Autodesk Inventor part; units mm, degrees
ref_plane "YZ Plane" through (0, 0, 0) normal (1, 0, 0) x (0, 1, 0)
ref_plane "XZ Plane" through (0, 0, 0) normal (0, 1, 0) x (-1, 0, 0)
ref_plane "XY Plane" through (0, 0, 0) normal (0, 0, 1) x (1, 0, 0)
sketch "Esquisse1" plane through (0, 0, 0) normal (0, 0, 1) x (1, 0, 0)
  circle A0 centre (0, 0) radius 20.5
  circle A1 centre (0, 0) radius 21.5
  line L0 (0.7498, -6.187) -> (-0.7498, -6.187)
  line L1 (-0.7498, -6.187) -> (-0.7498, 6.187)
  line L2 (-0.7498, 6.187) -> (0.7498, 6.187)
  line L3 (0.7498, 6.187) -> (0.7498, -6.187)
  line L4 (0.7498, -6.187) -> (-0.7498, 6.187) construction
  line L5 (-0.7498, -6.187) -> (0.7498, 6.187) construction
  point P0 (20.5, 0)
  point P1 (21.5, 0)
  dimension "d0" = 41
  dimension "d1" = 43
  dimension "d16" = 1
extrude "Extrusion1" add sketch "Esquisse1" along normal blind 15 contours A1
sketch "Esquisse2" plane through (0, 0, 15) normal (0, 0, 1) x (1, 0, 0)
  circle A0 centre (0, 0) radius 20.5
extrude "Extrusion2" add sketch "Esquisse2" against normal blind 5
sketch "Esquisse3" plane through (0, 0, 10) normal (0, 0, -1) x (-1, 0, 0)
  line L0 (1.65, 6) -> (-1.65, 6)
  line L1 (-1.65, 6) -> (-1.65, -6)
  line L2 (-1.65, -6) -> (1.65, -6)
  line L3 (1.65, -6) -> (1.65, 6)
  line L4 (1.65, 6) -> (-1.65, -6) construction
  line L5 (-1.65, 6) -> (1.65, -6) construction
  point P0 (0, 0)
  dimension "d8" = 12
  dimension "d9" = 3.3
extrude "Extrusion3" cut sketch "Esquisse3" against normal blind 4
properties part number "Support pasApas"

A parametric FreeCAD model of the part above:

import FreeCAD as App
import Part
import Sketcher
from FreeCAD import Vector
Q = App.Units.Quantity

doc = App.newDocument("Part")
body = doc.addObject("PartDesign::Body", "Body")

sketch1 = body.newObject("Sketcher::SketchObject", "Sketch")
sketch1.AttachmentSupport = (doc.getObject("XY_Plane"), [""])
sketch1.MapMode = "FlatFace"
sketch1.addGeometry([
    Part.Circle(Vector(0, 0, 0), Vector(0, 0, 1), 22),
    Part.Circle(Vector(0, 0, 0), Vector(0, 0, 1), 20),
], False)
sketch1.addConstraint([
    Sketcher.Constraint("Coincident", 0, 3, -1, 1),
    Sketcher.Constraint("Coincident", 1, 3, -1, 1),
    Sketcher.Constraint("Diameter", 0, Q("43 mm")),
    Sketcher.Constraint("Diameter", 1, Q("41 mm")),
])
pad1 = body.newObject("PartDesign::Pad", "Pad")
pad1.Profile = sketch1
pad1.Length = 15

sketch2 = body.newObject("Sketcher::SketchObject", "Sketch001")
sketch2.AttachmentSupport = (doc.getObject("XY_Plane"), [""])
sketch2.MapMode = "FlatFace"
sketch2.AttachmentOffset = App.Placement(Vector(0, 0, 15), App.Rotation())
sketch2.addGeometry(Part.Circle(Vector(0, 0, 0), Vector(0, 0, 1), 20), False)
sketch2.addConstraint([
    Sketcher.Constraint("Coincident", 0, 3, -1, 1),
    Sketcher.Constraint("Diameter", 0, Q("41 mm")),
])
pad2 = body.newObject("PartDesign::Pad", "Pad001")
pad2.Profile = sketch2
pad2.Length = 5
pad2.Reversed = True

sketch3 = body.newObject("Sketcher::SketchObject", "Sketch002")
sketch3.AttachmentSupport = (doc.getObject("XY_Plane"), [""])
sketch3.MapMode = "FlatFace"
sketch3.AttachmentOffset = App.Placement(Vector(0, 0, 10), App.Rotation())
sketch3.addGeometry([
    Part.LineSegment(Vector(-1.6, -6, 0), Vector(-1.6, 6, 0)),
    Part.LineSegment(Vector(-1.6, 6, 0), Vector(1.6, 6, 0)),
    Part.LineSegment(Vector(1.6, 6, 0), Vector(1.6, -6, 0)),
    Part.LineSegment(Vector(1.6, -6, 0), Vector(-1.6, -6, 0)),
], False)
sketch3.addConstraint([
    Sketcher.Constraint("Coincident", 0, 2, 1, 1),
    Sketcher.Constraint("Coincident", 1, 2, 2, 1),
    Sketcher.Constraint("Coincident", 2, 2, 3, 1),
    Sketcher.Constraint("Coincident", 3, 2, 0, 1),
    Sketcher.Constraint("Vertical", 0),
    Sketcher.Constraint("Horizontal", 1),
    Sketcher.Constraint("Vertical", 2),
    Sketcher.Constraint("Horizontal", 3),
    Sketcher.Constraint("Symmetric", 0, 2, 2, 2, -1, 1),
    Sketcher.Constraint("DistanceY", 0, 1, 0, 2, Q("12 mm")),
    Sketcher.Constraint("DistanceX", 1, 1, 1, 2, Q("3.3 mm")),
])
pocket1 = body.newObject("PartDesign::Pocket", "Pocket")
pocket1.Profile = sketch3
pocket1.Length = 4
pocket1.Reversed = True

doc.recompute()
